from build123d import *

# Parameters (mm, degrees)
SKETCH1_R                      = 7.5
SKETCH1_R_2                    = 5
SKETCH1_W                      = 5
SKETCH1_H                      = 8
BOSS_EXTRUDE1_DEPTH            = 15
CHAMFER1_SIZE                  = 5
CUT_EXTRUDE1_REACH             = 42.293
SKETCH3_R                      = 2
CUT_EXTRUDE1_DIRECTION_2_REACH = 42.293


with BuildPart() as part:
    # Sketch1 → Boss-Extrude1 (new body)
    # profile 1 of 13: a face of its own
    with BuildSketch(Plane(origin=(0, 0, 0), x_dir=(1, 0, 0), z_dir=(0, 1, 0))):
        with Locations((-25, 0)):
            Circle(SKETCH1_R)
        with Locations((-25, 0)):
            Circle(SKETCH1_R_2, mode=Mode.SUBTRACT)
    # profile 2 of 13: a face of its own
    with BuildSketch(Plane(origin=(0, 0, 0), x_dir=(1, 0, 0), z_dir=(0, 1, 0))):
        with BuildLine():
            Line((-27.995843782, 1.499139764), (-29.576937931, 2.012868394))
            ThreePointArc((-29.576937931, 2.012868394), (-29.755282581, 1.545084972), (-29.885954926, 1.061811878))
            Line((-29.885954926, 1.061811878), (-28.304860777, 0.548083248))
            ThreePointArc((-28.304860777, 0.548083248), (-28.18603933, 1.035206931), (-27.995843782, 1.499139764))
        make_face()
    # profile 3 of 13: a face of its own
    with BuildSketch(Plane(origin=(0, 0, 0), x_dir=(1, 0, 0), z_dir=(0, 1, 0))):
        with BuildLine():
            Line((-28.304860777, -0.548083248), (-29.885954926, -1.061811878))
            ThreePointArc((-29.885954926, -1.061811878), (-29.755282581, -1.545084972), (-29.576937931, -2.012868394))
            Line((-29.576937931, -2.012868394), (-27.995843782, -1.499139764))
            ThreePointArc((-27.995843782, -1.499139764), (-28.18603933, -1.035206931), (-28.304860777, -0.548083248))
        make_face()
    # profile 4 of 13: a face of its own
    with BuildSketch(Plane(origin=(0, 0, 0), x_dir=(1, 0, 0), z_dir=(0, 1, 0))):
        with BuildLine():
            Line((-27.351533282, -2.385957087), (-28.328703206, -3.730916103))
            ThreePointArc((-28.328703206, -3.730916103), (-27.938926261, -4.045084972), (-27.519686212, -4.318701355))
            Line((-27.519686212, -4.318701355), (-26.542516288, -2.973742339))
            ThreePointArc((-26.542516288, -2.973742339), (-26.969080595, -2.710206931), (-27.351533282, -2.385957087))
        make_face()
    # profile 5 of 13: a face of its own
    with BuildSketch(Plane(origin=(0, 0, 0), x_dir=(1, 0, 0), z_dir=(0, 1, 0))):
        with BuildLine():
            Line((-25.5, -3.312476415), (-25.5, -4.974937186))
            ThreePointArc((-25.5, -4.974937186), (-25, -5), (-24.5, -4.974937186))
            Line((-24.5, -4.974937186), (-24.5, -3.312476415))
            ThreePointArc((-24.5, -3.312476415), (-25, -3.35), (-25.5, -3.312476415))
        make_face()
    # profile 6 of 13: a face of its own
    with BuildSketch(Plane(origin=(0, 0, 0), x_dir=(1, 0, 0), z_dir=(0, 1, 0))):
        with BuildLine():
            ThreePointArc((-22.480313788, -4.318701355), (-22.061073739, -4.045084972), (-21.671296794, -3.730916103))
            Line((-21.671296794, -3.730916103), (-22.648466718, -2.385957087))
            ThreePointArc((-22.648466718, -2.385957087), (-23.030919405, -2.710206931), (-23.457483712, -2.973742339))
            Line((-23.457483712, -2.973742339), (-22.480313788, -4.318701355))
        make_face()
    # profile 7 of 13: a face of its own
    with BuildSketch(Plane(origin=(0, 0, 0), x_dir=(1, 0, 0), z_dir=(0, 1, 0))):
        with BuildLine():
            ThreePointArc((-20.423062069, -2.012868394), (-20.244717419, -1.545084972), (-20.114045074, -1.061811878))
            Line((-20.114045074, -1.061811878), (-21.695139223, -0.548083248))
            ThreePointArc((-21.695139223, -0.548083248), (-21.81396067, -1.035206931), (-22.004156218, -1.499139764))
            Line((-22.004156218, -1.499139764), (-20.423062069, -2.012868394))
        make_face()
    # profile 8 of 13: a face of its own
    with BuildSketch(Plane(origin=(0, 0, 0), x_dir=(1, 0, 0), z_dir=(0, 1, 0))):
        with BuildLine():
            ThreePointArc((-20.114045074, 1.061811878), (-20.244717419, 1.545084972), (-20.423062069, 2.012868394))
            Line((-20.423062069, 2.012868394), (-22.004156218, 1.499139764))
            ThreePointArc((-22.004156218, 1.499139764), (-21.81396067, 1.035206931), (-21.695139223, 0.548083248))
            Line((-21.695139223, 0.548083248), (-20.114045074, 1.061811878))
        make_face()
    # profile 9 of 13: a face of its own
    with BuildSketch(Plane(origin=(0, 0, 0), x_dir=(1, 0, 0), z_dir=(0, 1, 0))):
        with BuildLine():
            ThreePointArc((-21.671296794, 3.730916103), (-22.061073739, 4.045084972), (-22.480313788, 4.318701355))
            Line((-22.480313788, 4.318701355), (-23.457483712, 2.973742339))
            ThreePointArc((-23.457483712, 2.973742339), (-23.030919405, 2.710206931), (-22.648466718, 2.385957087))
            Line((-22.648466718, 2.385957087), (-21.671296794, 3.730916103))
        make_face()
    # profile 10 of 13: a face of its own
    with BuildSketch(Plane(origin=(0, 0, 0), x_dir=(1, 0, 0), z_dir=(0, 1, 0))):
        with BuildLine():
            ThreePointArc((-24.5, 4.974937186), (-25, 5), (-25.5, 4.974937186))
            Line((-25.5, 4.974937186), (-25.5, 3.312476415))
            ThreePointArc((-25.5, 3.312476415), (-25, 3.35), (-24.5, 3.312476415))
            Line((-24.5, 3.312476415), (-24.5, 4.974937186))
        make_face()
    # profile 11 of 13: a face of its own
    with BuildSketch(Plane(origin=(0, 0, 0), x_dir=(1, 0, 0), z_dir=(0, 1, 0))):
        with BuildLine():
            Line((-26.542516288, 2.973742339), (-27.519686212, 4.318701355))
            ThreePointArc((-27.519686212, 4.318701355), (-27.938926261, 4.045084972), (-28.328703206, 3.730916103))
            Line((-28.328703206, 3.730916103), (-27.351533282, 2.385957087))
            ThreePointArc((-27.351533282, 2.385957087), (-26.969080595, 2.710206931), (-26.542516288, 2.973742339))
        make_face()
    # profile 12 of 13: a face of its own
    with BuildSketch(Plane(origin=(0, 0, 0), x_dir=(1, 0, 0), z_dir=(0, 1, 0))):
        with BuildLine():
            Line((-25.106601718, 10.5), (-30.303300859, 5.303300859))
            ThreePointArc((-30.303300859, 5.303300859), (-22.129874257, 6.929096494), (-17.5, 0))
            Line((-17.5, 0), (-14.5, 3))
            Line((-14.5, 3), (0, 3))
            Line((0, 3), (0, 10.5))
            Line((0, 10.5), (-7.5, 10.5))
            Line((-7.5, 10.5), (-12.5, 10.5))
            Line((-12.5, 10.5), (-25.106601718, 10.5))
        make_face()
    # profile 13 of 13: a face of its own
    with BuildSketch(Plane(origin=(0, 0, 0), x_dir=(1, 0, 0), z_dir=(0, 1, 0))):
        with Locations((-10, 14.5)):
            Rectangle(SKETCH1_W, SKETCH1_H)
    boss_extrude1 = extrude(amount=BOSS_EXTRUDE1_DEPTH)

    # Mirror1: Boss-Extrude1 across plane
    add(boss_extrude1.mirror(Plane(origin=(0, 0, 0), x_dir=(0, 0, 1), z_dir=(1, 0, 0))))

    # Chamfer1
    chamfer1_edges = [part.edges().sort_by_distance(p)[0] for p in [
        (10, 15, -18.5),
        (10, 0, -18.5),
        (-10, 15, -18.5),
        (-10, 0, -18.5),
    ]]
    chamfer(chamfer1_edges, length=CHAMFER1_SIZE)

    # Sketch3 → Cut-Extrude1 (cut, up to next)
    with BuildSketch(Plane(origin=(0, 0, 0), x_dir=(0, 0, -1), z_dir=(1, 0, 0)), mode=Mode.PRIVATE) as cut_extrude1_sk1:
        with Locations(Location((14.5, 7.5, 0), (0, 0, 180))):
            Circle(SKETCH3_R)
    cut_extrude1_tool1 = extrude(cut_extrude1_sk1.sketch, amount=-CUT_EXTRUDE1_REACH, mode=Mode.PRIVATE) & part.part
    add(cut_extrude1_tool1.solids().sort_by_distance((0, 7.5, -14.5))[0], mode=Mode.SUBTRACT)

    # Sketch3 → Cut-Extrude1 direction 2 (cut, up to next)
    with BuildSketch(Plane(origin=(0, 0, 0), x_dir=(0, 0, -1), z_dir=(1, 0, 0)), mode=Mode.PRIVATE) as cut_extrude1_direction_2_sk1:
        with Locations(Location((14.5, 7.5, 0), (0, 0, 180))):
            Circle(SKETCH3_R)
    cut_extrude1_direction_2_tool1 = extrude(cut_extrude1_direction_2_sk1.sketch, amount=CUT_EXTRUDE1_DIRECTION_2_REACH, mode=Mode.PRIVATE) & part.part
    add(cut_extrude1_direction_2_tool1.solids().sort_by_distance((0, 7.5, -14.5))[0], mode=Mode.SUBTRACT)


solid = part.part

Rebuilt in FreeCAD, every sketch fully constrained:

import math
import FreeCAD as App
import Part
import Sketcher
Q = App.Units.Quantity


def edges_at(feature, points):
    """Names of the edges that pass closest to the given points."""
    edges = feature.Shape.Edges
    near = lambda p: min(range(len(edges)), key=lambda i: edges[i].distToShape(Part.Vertex(*p))[0])
    return sorted({f"Edge{near(p) + 1}" for p in points})

doc = App.newDocument("Part")
params = doc.addObject("Spreadsheet::Sheet", "Params")
for row, (alias, value) in enumerate([
    ("sketch1_radius", "5 mm"),
    ("sketch1_radius2", "7.5 mm"),
    ("sketch1_width", "5 mm"),
    ("sketch1_height", "8 mm"),
    ("sketch1_radius3", "3.35 mm"),
    ("pad1_length", "15 mm"),
    ("chamfer_size", "5 mm"),
    ("sketch2_diameter", "4 mm"),
    ("pocket1_length", "12.5 mm"),
    ("sketch3_diameter", "4 mm"),
    ("pocket2_length", "12.5 mm"),
], start=1):
    params.set(f"A{row}", alias)
    params.set(f"B{row}", "=" + value)
    params.setAlias(f"B{row}", alias)

body = doc.addObject("PartDesign::Body", "Body")

sketch1 = body.newObject("Sketcher::SketchObject", "Sketch")
sketch1.AttachmentSupport = (doc.getObject("XZ_Plane"), [""])
sketch1.MapMode = "FlatFace"
sketch1.addGeometry([
    Part.ArcOfCircle(Part.Circle(App.Vector(-25, 0, 0), App.Vector(0, 0, 1), 7.5), math.radians(0), math.radians(225)),
    Part.LineSegment(App.Vector(-17.5, 0, 0), App.Vector(-14.5, -3, 0)),
    Part.LineSegment(App.Vector(-14.5, -3, 0), App.Vector(0, -3, 0)),
    Part.LineSegment(App.Vector(0, -3, 0), App.Vector(0, -10.5, 0)),
    Part.LineSegment(App.Vector(0, -10.5, 0), App.Vector(-7.5, -10.5, 0)),
    Part.LineSegment(App.Vector(-7.5, -10.5, 0), App.Vector(-7.5, -18.5, 0)),
    Part.LineSegment(App.Vector(-7.5, -18.5, 0), App.Vector(-12.5, -18.5, 0)),
    Part.LineSegment(App.Vector(-12.5, -18.5, 0), App.Vector(-12.5, -10.5, 0)),
    Part.LineSegment(App.Vector(-12.5, -10.5, 0), App.Vector(-25.1, -10.5, 0)),
    Part.LineSegment(App.Vector(-25.1, -10.5, 0), App.Vector(-30.3, -5.3, 0)),
    Part.ArcOfCircle(Part.Circle(App.Vector(-25, 0, 0), App.Vector(0, 0, 1), 5), math.radians(-12), math.radians(12)),
    Part.LineSegment(App.Vector(-20.1, 1.1, 0), App.Vector(-21.7, 0.5, 0)),
    Part.ArcOfCircle(Part.Circle(App.Vector(-25, 0, 0), App.Vector(0, 0, 1), 3.3), math.radians(9.42), math.radians(26.58)),
    Part.LineSegment(App.Vector(-22, 1.5, 0), App.Vector(-20.4, 2, 0)),
    Part.ArcOfCircle(Part.Circle(App.Vector(-25, 0, 0), App.Vector(0, 0, 1), 5), math.radians(24), math.radians(48)),
    Part.LineSegment(App.Vector(-21.7, 3.7, 0), App.Vector(-22.6, 2.4, 0)),
    Part.ArcOfCircle(Part.Circle(App.Vector(-25, 0, 0), App.Vector(0, 0, 1), 3.3), math.radians(45.42), math.radians(62.58)),
    Part.LineSegment(App.Vector(-23.5, 3, 0), App.Vector(-22.5, 4.3, 0)),
    Part.ArcOfCircle(Part.Circle(App.Vector(-25, 0, 0), App.Vector(0, 0, 1), 5), math.radians(60), math.radians(84)),
    Part.LineSegment(App.Vector(-24.5, 5, 0), App.Vector(-24.5, 3.3, 0)),
    Part.ArcOfCircle(Part.Circle(App.Vector(-25, 0, 0), App.Vector(0, 0, 1), 3.3), math.radians(81.42), math.radians(98.58)),
    Part.LineSegment(App.Vector(-25.5, 3.3, 0), App.Vector(-25.5, 5, 0)),
    Part.ArcOfCircle(Part.Circle(App.Vector(-25, 0, 0), App.Vector(0, 0, 1), 5), math.radians(96), math.radians(120)),
    Part.LineSegment(App.Vector(-27.5, 4.3, 0), App.Vector(-26.5, 3, 0)),
    Part.ArcOfCircle(Part.Circle(App.Vector(-25, 0, 0), App.Vector(0, 0, 1), 3.3), math.radians(117.42), math.radians(134.58)),
    Part.LineSegment(App.Vector(-27.4, 2.4, 0), App.Vector(-28.3, 3.7, 0)),
    Part.ArcOfCircle(Part.Circle(App.Vector(-25, 0, 0), App.Vector(0, 0, 1), 5), math.radians(132), math.radians(156)),
    Part.LineSegment(App.Vector(-29.6, 2, 0), App.Vector(-28, 1.5, 0)),
    Part.ArcOfCircle(Part.Circle(App.Vector(-25, 0, 0), App.Vector(0, 0, 1), 3.3), math.radians(153.42), math.radians(170.58)),
    Part.LineSegment(App.Vector(-28.3, 0.5, 0), App.Vector(-29.9, 1.1, 0)),
    Part.ArcOfCircle(Part.Circle(App.Vector(-25, 0, 0), App.Vector(0, 0, 1), 5), math.radians(168), math.radians(192)),
    Part.LineSegment(App.Vector(-29.9, -1.1, 0), App.Vector(-28.3, -0.5, 0)),
    Part.ArcOfCircle(Part.Circle(App.Vector(-25, 0, 0), App.Vector(0, 0, 1), 3.3), math.radians(-170.58), math.radians(-153.42)),
    Part.LineSegment(App.Vector(-28, -1.5, 0), App.Vector(-29.6, -2, 0)),
    Part.ArcOfCircle(Part.Circle(App.Vector(-25, 0, 0), App.Vector(0, 0, 1), 5), math.radians(-156), math.radians(-132)),
    Part.LineSegment(App.Vector(-28.3, -3.7, 0), App.Vector(-27.4, -2.4, 0)),
    Part.ArcOfCircle(Part.Circle(App.Vector(-25, 0, 0), App.Vector(0, 0, 1), 3.3), math.radians(-134.58), math.radians(-117.42)),
    Part.LineSegment(App.Vector(-26.5, -3, 0), App.Vector(-27.5, -4.3, 0)),
    Part.ArcOfCircle(Part.Circle(App.Vector(-25, 0, 0), App.Vector(0, 0, 1), 5), math.radians(-120), math.radians(-96)),
    Part.LineSegment(App.Vector(-25.5, -5, 0), App.Vector(-25.5, -3.3, 0)),
    Part.ArcOfCircle(Part.Circle(App.Vector(-25, 0, 0), App.Vector(0, 0, 1), 3.3), math.radians(-98.58), math.radians(-81.42)),
    Part.LineSegment(App.Vector(-24.5, -3.3, 0), App.Vector(-24.5, -5, 0)),
    Part.ArcOfCircle(Part.Circle(App.Vector(-25, 0, 0), App.Vector(0, 0, 1), 5), math.radians(-84), math.radians(-60)),
    Part.LineSegment(App.Vector(-22.5, -4.3, 0), App.Vector(-23.5, -3, 0)),
    Part.ArcOfCircle(Part.Circle(App.Vector(-25, 0, 0), App.Vector(0, 0, 1), 3.3), math.radians(-62.58), math.radians(-45.42)),
    Part.LineSegment(App.Vector(-22.6, -2.4, 0), App.Vector(-21.7, -3.7, 0)),
    Part.ArcOfCircle(Part.Circle(App.Vector(-25, 0, 0), App.Vector(0, 0, 1), 5), math.radians(-48), math.radians(-24)),
    Part.LineSegment(App.Vector(-20.4, -2, 0), App.Vector(-22, -1.5, 0)),
    Part.ArcOfCircle(Part.Circle(App.Vector(-25, 0, 0), App.Vector(0, 0, 1), 3.3), math.radians(-26.58), math.radians(-9.42)),
    Part.LineSegment(App.Vector(-21.7, -0.5, 0), App.Vector(-20.1, -1.1, 0)),
], False)
sketch1.addConstraint([
    Sketcher.Constraint("Coincident", 0, 1, 1, 1),
    Sketcher.Constraint("Coincident", 1, 2, 2, 1),
    Sketcher.Constraint("Coincident", 2, 2, 3, 1),
    Sketcher.Constraint("Coincident", 3, 2, 4, 1),
    Sketcher.Constraint("Coincident", 4, 2, 5, 1),
    Sketcher.Constraint("Coincident", 5, 2, 6, 1),
    Sketcher.Constraint("Coincident", 6, 2, 7, 1),
    Sketcher.Constraint("Coincident", 7, 2, 8, 1),
    Sketcher.Constraint("Coincident", 8, 2, 9, 1),
    Sketcher.Constraint("Tangent", 9, 2, 0, 2),
    Sketcher.Constraint("Coincident", 10, 2, 11, 1),
    Sketcher.Constraint("Coincident", 11, 2, 12, 1),
    Sketcher.Constraint("Coincident", 12, 2, 13, 1),
    Sketcher.Constraint("Coincident", 13, 2, 14, 1),
    Sketcher.Constraint("Coincident", 14, 2, 15, 1),
    Sketcher.Constraint("Coincident", 15, 2, 16, 1),
    Sketcher.Constraint("Coincident", 16, 2, 17, 1),
    Sketcher.Constraint("Coincident", 17, 2, 18, 1),
    Sketcher.Constraint("Coincident", 18, 2, 19, 1),
    Sketcher.Constraint("Coincident", 19, 2, 20, 1),
    Sketcher.Constraint("Coincident", 20, 2, 21, 1),
    Sketcher.Constraint("Coincident", 21, 2, 22, 1),
    Sketcher.Constraint("Coincident", 22, 2, 23, 1),
    Sketcher.Constraint("Coincident", 23, 2, 24, 1),
    Sketcher.Constraint("Coincident", 24, 2, 25, 1),
    Sketcher.Constraint("Coincident", 25, 2, 26, 1),
    Sketcher.Constraint("Coincident", 26, 2, 27, 1),
    Sketcher.Constraint("Coincident", 27, 2, 28, 1),
    Sketcher.Constraint("Coincident", 28, 2, 29, 1),
    Sketcher.Constraint("Coincident", 29, 2, 30, 1),
    Sketcher.Constraint("Coincident", 30, 2, 31, 1),
    Sketcher.Constraint("Coincident", 31, 2, 32, 1),
    Sketcher.Constraint("Coincident", 32, 2, 33, 1),
    Sketcher.Constraint("Coincident", 33, 2, 34, 1),
    Sketcher.Constraint("Coincident", 34, 2, 35, 1),
    Sketcher.Constraint("Coincident", 35, 2, 36, 1),
    Sketcher.Constraint("Coincident", 36, 2, 37, 1),
    Sketcher.Constraint("Coincident", 37, 2, 38, 1),
    Sketcher.Constraint("Coincident", 38, 2, 39, 1),
    Sketcher.Constraint("Coincident", 39, 2, 40, 1),
    Sketcher.Constraint("Coincident", 40, 2, 41, 1),
    Sketcher.Constraint("Coincident", 41, 2, 42, 1),
    Sketcher.Constraint("Coincident", 42, 2, 43, 1),
    Sketcher.Constraint("Coincident", 43, 2, 44, 1),
    Sketcher.Constraint("Coincident", 44, 2, 45, 1),
    Sketcher.Constraint("Coincident", 45, 2, 46, 1),
    Sketcher.Constraint("Coincident", 46, 2, 47, 1),
    Sketcher.Constraint("Coincident", 47, 2, 48, 1),
    Sketcher.Constraint("Coincident", 48, 2, 49, 1),
    Sketcher.Constraint("Coincident", 49, 2, 10, 1),
    Sketcher.Constraint("Horizontal", 2),
    Sketcher.Constraint("Vertical", 3),
    Sketcher.Constraint("Horizontal", 4),
    Sketcher.Constraint("Vertical", 5),
    Sketcher.Constraint("Horizontal", 6),
    Sketcher.Constraint("Vertical", 7),
    Sketcher.Constraint("Horizontal", 8),
    Sketcher.Constraint("Vertical", 19),
    Sketcher.Constraint("Vertical", 21),
    Sketcher.Constraint("Vertical", 39),
    Sketcher.Constraint("Vertical", 41),
    Sketcher.Constraint("Coincident", 10, 3, 0, 3),
    Sketcher.Constraint("Coincident", 12, 3, 0, 3),
    Sketcher.Constraint("Coincident", 14, 3, 0, 3),
    Sketcher.Constraint("Coincident", 16, 3, 0, 3),
    Sketcher.Constraint("Coincident", 18, 3, 0, 3),
    Sketcher.Constraint("Coincident", 20, 3, 0, 3),
    Sketcher.Constraint("Coincident", 22, 3, 0, 3),
    Sketcher.Constraint("Coincident", 24, 3, 0, 3),
    Sketcher.Constraint("Coincident", 26, 3, 0, 3),
    Sketcher.Constraint("Coincident", 28, 3, 0, 3),
    Sketcher.Constraint("Coincident", 30, 3, 0, 3),
    Sketcher.Constraint("Coincident", 32, 3, 0, 3),
    Sketcher.Constraint("Coincident", 34, 3, 0, 3),
    Sketcher.Constraint("Coincident", 36, 3, 0, 3),
    Sketcher.Constraint("Coincident", 38, 3, 0, 3),
    Sketcher.Constraint("Coincident", 40, 3, 0, 3),
    Sketcher.Constraint("Coincident", 42, 3, 0, 3),
    Sketcher.Constraint("Coincident", 44, 3, 0, 3),
    Sketcher.Constraint("Coincident", 46, 3, 0, 3),
    Sketcher.Constraint("Coincident", 48, 3, 0, 3),
    Sketcher.Constraint("Equal", 10, 14),
    Sketcher.Constraint("Equal", 12, 16),
    Sketcher.Constraint("Equal", 14, 18),
    Sketcher.Constraint("Equal", 16, 20),
    Sketcher.Constraint("Equal", 18, 22),
    Sketcher.Constraint("Equal", 20, 24),
    Sketcher.Constraint("Equal", 22, 26),
    Sketcher.Constraint("Equal", 24, 28),
    Sketcher.Constraint("Equal", 26, 30),
    Sketcher.Constraint("Equal", 28, 32),
    Sketcher.Constraint("Equal", 30, 34),
    Sketcher.Constraint("Equal", 32, 36),
    Sketcher.Constraint("Equal", 34, 38),
    Sketcher.Constraint("Equal", 36, 40),
    Sketcher.Constraint("Equal", 38, 42),
    Sketcher.Constraint("Equal", 40, 44),
    Sketcher.Constraint("Equal", 42, 46),
    Sketcher.Constraint("Equal", 44, 48),
    Sketcher.Constraint("Symmetric", 29, 2, 30, 2, -1),
    Sketcher.Constraint("PointOnObject", 0, 1, -1),
    Sketcher.Constraint("PointOnObject", 2, 2, -2),
    Sketcher.Constraint("Parallel", 1, 9),
    Sketcher.Constraint("Parallel", 11, 13),
    Sketcher.Constraint("Parallel", 15, 17),
    Sketcher.Constraint("Parallel", 23, 25),
    Sketcher.Constraint("Parallel", 27, 29),
    Sketcher.Constraint("Parallel", 13, 31),
    Sketcher.Constraint("Parallel", 31, 33),
    Sketcher.Constraint("Parallel", 17, 35),
    Sketcher.Constraint("Parallel", 35, 37),
    Sketcher.Constraint("Parallel", 25, 43),
    Sketcher.Constraint("Parallel", 43, 45),
    Sketcher.Constraint("Parallel", 29, 47),
    Sketcher.Constraint("Parallel", 47, 49),
    Sketcher.Constraint("Horizontal", 4, 2, 7, 2),
    Sketcher.Constraint("Horizontal", 19, 2, 20, 2),
    Sketcher.Constraint("Horizontal", 17, 2, 22, 2),
    Sketcher.Constraint("Horizontal", 16, 2, 23, 2),
    Sketcher.Constraint("Horizontal", 15, 2, 24, 2),
    Sketcher.Constraint("Horizontal", 13, 2, 26, 2),
    Sketcher.Constraint("Horizontal", 12, 2, 27, 2),
    Sketcher.Constraint("Horizontal", 11, 2, 28, 2),
    Sketcher.Constraint("Horizontal", 39, 2, 40, 2),
    Sketcher.Constraint("Horizontal", 37, 2, 42, 2),
    Sketcher.Constraint("Horizontal", 35, 2, 44, 2),
    Sketcher.Constraint("Horizontal", 33, 2, 46, 2),
    Sketcher.Constraint("Horizontal", 31, 2, 48, 2),
    Sketcher.Constraint("Vertical", 27, 2, 32, 2),
    Sketcher.Constraint("Vertical", 25, 2, 34, 2),
    Sketcher.Constraint("Vertical", 23, 2, 36, 2),
    Sketcher.Constraint("Vertical", 21, 2, 38, 2),
    Sketcher.Constraint("Equal", 4, 3),
    Sketcher.Constraint("Equal", 11, 13),
    Sketcher.Constraint("Equal", 13, 15),
    Sketcher.Constraint("Equal", 15, 17),
    Sketcher.Constraint("Radius", 10, Q("5 mm")),
    Sketcher.Constraint("Radius", 0, Q("7.5 mm")),
    Sketcher.Constraint("DistanceX", 6, 2, 6, 1, Q("5 mm")),
    Sketcher.Constraint("DistanceY", 5, 2, 5, 1, Q("8 mm")),
    Sketcher.Constraint("Angle", 1, Q("-45 deg")),
    Sketcher.Constraint("Angle", 11, Q("-162 deg")),
    Sketcher.Constraint("Angle", 15, Q("-126 deg")),
    Sketcher.Constraint("Radius", 12, Q("3.35 mm")),
    Sketcher.Constraint("DistanceX", 2, 1, 2, 2, Q("14.5 mm")),
    Sketcher.Constraint("DistanceX", 4, 2, 4, 1, Q("7.5 mm")),
    Sketcher.Constraint("DistanceX", 0, 3, -1, 1, Q("25 mm")),
    Sketcher.Constraint("DistanceX", 18, 2, -1, 1, Q("24.5 mm")),
    Sketcher.Constraint("DistanceY", -1, 1, 17, 2, Q("4.318701 mm")),
])
sketch1.setExpression("Constraints[136]", "Params.sketch1_radius")
sketch1.setExpression("Constraints[137]", "Params.sketch1_radius2")
sketch1.setExpression("Constraints[138]", "Params.sketch1_width")
sketch1.setExpression("Constraints[139]", "Params.sketch1_height")
sketch1.setExpression("Constraints[143]", "Params.sketch1_radius3")
pad1 = body.newObject("PartDesign::Pad", "Pad")
pad1.Profile = sketch1
pad1.setExpression("Length", "Params.pad1_length")
pad1.Reversed = True
doc.recompute()

mirrored = body.newObject("PartDesign::Mirrored", "Mirrored")
mirrored.Originals = [pad1]
mirrored.MirrorPlane = (doc.getObject("YZ_Plane"), [""])
body.Tip = mirrored
doc.recompute()

chamfer = body.newObject("PartDesign::Chamfer", "Chamfer")
chamfer.Base = (mirrored, edges_at(mirrored, [
    (10, 15, -18.5),
    (10, 0, -18.5),
    (-10, 15, -18.5),
    (-10, 0, -18.5),
]))
chamfer.setExpression("Size", "Params.chamfer_size")

sketch2 = body.newObject("Sketcher::SketchObject", "Sketch001")
sketch2.AttachmentSupport = (doc.getObject("YZ_Plane"), [""])
sketch2.MapMode = "FlatFace"
sketch2.addGeometry(Part.Circle(App.Vector(7.5, -14.5, 0), App.Vector(0, 0, 1), 2), False)
sketch2.addConstraint([
    Sketcher.Constraint("Diameter", 0, Q("4 mm")),
    Sketcher.Constraint("DistanceX", -1, 1, 0, 3, Q("7.5 mm")),
    Sketcher.Constraint("DistanceY", 0, 3, -1, 1, Q("14.5 mm")),
])
sketch2.setExpression("Constraints[0]", "Params.sketch2_diameter")
pocket1 = body.newObject("PartDesign::Pocket", "Pocket")
pocket1.Profile = sketch2
pocket1.setExpression("Length", "Params.pocket1_length")

sketch3 = body.newObject("Sketcher::SketchObject", "Sketch002")
sketch3.AttachmentSupport = (doc.getObject("YZ_Plane"), [""])
sketch3.MapMode = "FlatFace"
sketch3.addGeometry(Part.Circle(App.Vector(7.5, -14.5, 0), App.Vector(0, 0, 1), 2), False)
sketch3.addConstraint([
    Sketcher.Constraint("Diameter", 0, Q("4 mm")),
    Sketcher.Constraint("DistanceX", -1, 1, 0, 3, Q("7.5 mm")),
    Sketcher.Constraint("DistanceY", 0, 3, -1, 1, Q("14.5 mm")),
])
sketch3.setExpression("Constraints[0]", "Params.sketch3_diameter")
pocket2 = body.newObject("PartDesign::Pocket", "Pocket001")
pocket2.Profile = sketch3
pocket2.setExpression("Length", "Params.pocket2_length")
pocket2.Reversed = True

doc.recompute()
